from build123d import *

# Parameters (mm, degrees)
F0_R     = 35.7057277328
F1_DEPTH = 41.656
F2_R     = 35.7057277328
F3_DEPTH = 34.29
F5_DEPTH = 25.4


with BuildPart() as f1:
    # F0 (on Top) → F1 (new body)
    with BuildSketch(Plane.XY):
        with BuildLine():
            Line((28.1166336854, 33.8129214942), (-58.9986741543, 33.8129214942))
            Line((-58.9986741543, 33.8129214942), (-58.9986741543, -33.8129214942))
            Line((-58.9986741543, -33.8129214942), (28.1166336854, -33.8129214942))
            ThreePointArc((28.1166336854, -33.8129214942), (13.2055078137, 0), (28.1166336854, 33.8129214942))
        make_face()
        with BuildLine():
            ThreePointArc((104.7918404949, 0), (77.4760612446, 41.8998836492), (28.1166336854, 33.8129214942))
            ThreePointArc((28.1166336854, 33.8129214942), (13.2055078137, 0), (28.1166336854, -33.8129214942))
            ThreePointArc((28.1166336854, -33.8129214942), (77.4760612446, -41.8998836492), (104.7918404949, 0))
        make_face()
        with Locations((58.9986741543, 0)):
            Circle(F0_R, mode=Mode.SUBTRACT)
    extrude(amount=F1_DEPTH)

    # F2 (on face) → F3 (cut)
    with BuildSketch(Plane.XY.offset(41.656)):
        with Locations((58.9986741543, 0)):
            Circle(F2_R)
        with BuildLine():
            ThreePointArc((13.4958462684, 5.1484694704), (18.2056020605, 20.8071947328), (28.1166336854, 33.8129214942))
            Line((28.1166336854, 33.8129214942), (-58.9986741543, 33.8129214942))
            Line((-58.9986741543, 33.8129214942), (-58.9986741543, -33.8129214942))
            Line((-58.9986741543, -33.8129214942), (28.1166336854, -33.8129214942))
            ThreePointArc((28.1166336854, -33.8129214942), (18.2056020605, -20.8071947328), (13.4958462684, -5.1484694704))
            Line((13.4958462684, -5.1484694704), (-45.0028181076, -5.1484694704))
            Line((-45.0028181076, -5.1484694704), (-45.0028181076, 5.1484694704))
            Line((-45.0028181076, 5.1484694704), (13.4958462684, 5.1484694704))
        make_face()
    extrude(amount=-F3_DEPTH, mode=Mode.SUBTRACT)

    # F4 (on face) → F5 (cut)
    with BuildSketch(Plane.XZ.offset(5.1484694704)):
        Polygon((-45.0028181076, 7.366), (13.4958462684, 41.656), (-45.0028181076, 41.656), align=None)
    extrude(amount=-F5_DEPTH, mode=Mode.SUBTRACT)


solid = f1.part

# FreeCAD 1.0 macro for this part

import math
import FreeCAD as App
import Part
import Sketcher
from FreeCAD import Vector
Q = App.Units.Quantity

doc = App.newDocument("Part")
body = doc.addObject("PartDesign::Body", "Body")

sketch1 = body.newObject("Sketcher::SketchObject", "Sketch")
sketch1.AttachmentSupport = (doc.getObject("XY_Plane"), [""])
sketch1.MapMode = "FlatFace"
sketch1.addGeometry(Part.LineSegment(Vector(28, 34, 0), Vector(-59, 34, 0)), False)
sketch1.addGeometry(Part.LineSegment(Vector(-59, 34, 0), Vector(-59, -34, 0)), False)
sketch1.addGeometry(Part.LineSegment(Vector(-59, -34, 0), Vector(28, -34, 0)), False)
sketch1.addGeometry(Part.ArcOfCircle(Part.Circle(Vector(59, 0, 0), Vector(0, 0, 1), 46), math.radians(-132), math.radians(0)), False)
sketch1.addGeometry(Part.ArcOfCircle(Part.Circle(Vector(59, 0, 0), Vector(0, 0, 1), 46), math.radians(0), math.radians(132)), False)
sketch1.addGeometry(Part.Circle(Vector(59, 0, 0), Vector(0, 0, 1), 36), False)
sketch1.addConstraint(Sketcher.Constraint("Coincident", 0, 2, 1, 1))
sketch1.addConstraint(Sketcher.Constraint("Coincident", 1, 2, 2, 1))
sketch1.addConstraint(Sketcher.Constraint("Coincident", 2, 2, 3, 1))
sketch1.addConstraint(Sketcher.Constraint("Tangent", 3, 2, 4, 1))
sketch1.addConstraint(Sketcher.Constraint("Coincident", 4, 2, 0, 1))
sketch1.addConstraint(Sketcher.Constraint("Horizontal", 0))
sketch1.addConstraint(Sketcher.Constraint("Vertical", 1))
sketch1.addConstraint(Sketcher.Constraint("Horizontal", 2))
sketch1.addConstraint(Sketcher.Constraint("Coincident", 5, 3, 3, 3))
sketch1.addConstraint(Sketcher.Constraint("Equal", 3, 4))
sketch1.addConstraint(Sketcher.Constraint("Symmetric", 2, 2, 4, 2, -1))
sketch1.addConstraint(Sketcher.Constraint("PointOnObject", 3, 2, -1))
sketch1.addConstraint(Sketcher.Constraint("Diameter", 5, 71.411455))
sketch1.addConstraint(Sketcher.Constraint("Radius", 3, 45.793166))
sketch1.addConstraint(Sketcher.Constraint("DistanceX", 0, 2, 0, 1, 87.115308))
sketch1.addConstraint(Sketcher.Constraint("DistanceY", 1, 2, 1, 1, 67.625843))
sketch1.addConstraint(Sketcher.Constraint("DistanceX", -1, 1, 3, 2, 104.79184))
pad1 = body.newObject("PartDesign::Pad", "Pad")
pad1.Profile = sketch1
pad1.Length = Q("1.64 in")

sketch2 = body.newObject("Sketcher::SketchObject", "Sketch001")
sketch2.AttachmentSupport = (doc.getObject("XY_Plane"), [""])
sketch2.MapMode = "FlatFace"
sketch2.AttachmentOffset = App.Placement(Vector(0, 0, 1.64 * 25.4), App.Rotation())
sketch2.addGeometry(Part.Circle(Vector(59, 0, 0), Vector(0, 0, 1), 36), False)
sketch2.addGeometry(Part.ArcOfCircle(Part.Circle(Vector(59, 0, 0), Vector(0, 0, 1), 46), math.radians(132), math.radians(174)), False)
sketch2.addGeometry(Part.LineSegment(Vector(28, 34, 0), Vector(-59, 34, 0)), False)
sketch2.addGeometry(Part.LineSegment(Vector(-59, 34, 0), Vector(-59, -34, 0)), False)
sketch2.addGeometry(Part.LineSegment(Vector(-59, -34, 0), Vector(28, -34, 0)), False)
sketch2.addGeometry(Part.ArcOfCircle(Part.Circle(Vector(59, 0, 0), Vector(0, 0, 1), 46), math.radians(-174), math.radians(-132)), False)
sketch2.addGeometry(Part.LineSegment(Vector(13, -5, 0), Vector(-45, -5, 0)), False)
sketch2.addGeometry(Part.LineSegment(Vector(-45, -5, 0), Vector(-45, 5, 0)), False)
sketch2.addGeometry(Part.LineSegment(Vector(-45, 5, 0), Vector(13, 5, 0)), False)
sketch2.addConstraint(Sketcher.Constraint("Coincident", 1, 1, 2, 1))
sketch2.addConstraint(Sketcher.Constraint("Coincident", 2, 2, 3, 1))
sketch2.addConstraint(Sketcher.Constraint("Coincident", 3, 2, 4, 1))
sketch2.addConstraint(Sketcher.Constraint("Coincident", 4, 2, 5, 2))
sketch2.addConstraint(Sketcher.Constraint("Coincident", 5, 1, 6, 1))
sketch2.addConstraint(Sketcher.Constraint("Coincident", 6, 2, 7, 1))
sketch2.addConstraint(Sketcher.Constraint("Coincident", 7, 2, 8, 1))
sketch2.addConstraint(Sketcher.Constraint("Coincident", 8, 2, 1, 2))
sketch2.addConstraint(Sketcher.Constraint("Horizontal", 2))
sketch2.addConstraint(Sketcher.Constraint("Vertical", 3))
sketch2.addConstraint(Sketcher.Constraint("Horizontal", 4))
sketch2.addConstraint(Sketcher.Constraint("Horizontal", 6))
sketch2.addConstraint(Sketcher.Constraint("Vertical", 7))
sketch2.addConstraint(Sketcher.Constraint("Horizontal", 8))
sketch2.addConstraint(Sketcher.Constraint("Coincident", 1, 3, 0, 3))
sketch2.addConstraint(Sketcher.Constraint("Coincident", 5, 3, 0, 3))
sketch2.addConstraint(Sketcher.Constraint("Equal", 1, 5))
sketch2.addConstraint(Sketcher.Constraint("Symmetric", 1, 1, 4, 2, -1))
sketch2.addConstraint(Sketcher.Constraint("Vertical", 5, 1, 8, 2))
sketch2.addConstraint(Sketcher.Constraint("Diameter", 0, 71.411455))
sketch2.addConstraint(Sketcher.Constraint("Radius", 1, 45.793166))
sketch2.addConstraint(Sketcher.Constraint("DistanceY", 7, 1, 7, 2, 10.296939))
sketch2.addConstraint(Sketcher.Constraint("DistanceX", 2, 2, 2, 1, 87.115308))
sketch2.addConstraint(Sketcher.Constraint("DistanceX", 6, 2, 6, 1, 58.498664))
sketch2.addConstraint(Sketcher.Constraint("DistanceY", 3, 2, 3, 1, 67.625843))
sketch2.addConstraint(Sketcher.Constraint("DistanceX", 6, 2, -1, 1, 45.002818))
pocket1 = body.newObject("PartDesign::Pocket", "Pocket")
pocket1.Profile = sketch2
pocket1.Length = Q("1.35 in")

sketch3 = body.newObject("Sketcher::SketchObject", "Sketch002")
sketch3.AttachmentSupport = (doc.getObject("XZ_Plane"), [""])
sketch3.MapMode = "FlatFace"
sketch3.AttachmentOffset = App.Placement(Vector(0, 0, 5.148469), App.Rotation())
sketch3.addGeometry(Part.LineSegment(Vector(-45, 7, 0), Vector(13, 42, 0)), False)
sketch3.addGeometry(Part.LineSegment(Vector(13, 42, 0), Vector(-45, 42, 0)), False)
sketch3.addGeometry(Part.LineSegment(Vector(-45, 42, 0), Vector(-45, 7, 0)), False)
sketch3.addConstraint(Sketcher.Constraint("Coincident", 0, 2, 1, 1))
sketch3.addConstraint(Sketcher.Constraint("Coincident", 1, 2, 2, 1))
sketch3.addConstraint(Sketcher.Constraint("Coincident", 2, 2, 0, 1))
sketch3.addConstraint(Sketcher.Constraint("Horizontal", 1))
sketch3.addConstraint(Sketcher.Constraint("Vertical", 2))
sketch3.addConstraint(Sketcher.Constraint("DistanceY", 2, 2, 2, 1, Q("1.35 in")))
sketch3.addConstraint(Sketcher.Constraint("DistanceY", -1, 1, 0, 2, Q("1.64 in")))
sketch3.addConstraint(Sketcher.Constraint("Distance", 0, 67.807801))
sketch3.addConstraint(Sketcher.Constraint("DistanceX", 1, 2, -1, 1, 45.002818))
pocket2 = body.newObject("PartDesign::Pocket", "Pocket001")
pocket2.Profile = sketch3
pocket2.Length = Q("1 in")

doc.recompute()
